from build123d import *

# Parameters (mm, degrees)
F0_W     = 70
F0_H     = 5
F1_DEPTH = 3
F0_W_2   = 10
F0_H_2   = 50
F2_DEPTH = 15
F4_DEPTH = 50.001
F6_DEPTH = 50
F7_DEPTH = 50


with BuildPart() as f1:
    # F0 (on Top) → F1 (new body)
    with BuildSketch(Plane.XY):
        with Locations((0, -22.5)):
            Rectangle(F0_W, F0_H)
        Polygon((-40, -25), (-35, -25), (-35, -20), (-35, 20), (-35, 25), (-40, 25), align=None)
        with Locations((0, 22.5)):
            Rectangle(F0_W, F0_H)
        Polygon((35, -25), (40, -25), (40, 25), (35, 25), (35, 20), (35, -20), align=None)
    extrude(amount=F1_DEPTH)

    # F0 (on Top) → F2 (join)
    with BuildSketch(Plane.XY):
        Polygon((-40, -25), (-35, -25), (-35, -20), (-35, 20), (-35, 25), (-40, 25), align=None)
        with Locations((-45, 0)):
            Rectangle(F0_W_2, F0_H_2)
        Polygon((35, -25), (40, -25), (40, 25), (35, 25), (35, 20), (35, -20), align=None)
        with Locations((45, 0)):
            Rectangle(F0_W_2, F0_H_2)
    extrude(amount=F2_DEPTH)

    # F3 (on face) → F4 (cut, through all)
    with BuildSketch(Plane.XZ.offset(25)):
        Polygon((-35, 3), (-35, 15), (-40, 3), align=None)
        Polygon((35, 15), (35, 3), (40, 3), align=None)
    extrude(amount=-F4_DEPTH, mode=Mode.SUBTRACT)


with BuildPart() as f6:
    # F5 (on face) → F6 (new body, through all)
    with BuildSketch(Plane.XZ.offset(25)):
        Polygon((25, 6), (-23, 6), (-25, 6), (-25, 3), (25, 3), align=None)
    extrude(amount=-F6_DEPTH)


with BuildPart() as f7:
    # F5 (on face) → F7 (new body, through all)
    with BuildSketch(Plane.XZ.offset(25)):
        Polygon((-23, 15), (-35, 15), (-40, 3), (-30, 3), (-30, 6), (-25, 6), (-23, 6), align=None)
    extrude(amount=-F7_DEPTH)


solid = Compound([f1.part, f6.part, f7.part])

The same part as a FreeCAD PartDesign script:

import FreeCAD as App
import Part
import Sketcher

V = App.Vector


def add_polygon(sketch, points):
    """Adds a closed chain of lines whose ends are joined by coincident constraints."""
    first, n = sketch.GeometryCount, len(points)
    for a, b in zip(points, points[1:] + points[:1]):
        sketch.addGeometry(Part.LineSegment(App.Vector(*a, 0), App.Vector(*b, 0)), False)
    for i in range(n):
        sketch.addConstraint(Sketcher.Constraint("Coincident", first + i, 2, first + (i + 1) % n, 1))

doc = App.newDocument("Part")
body = doc.addObject("PartDesign::Body", "Body")

sketch1 = body.newObject("Sketcher::SketchObject", "Sketch")
sketch1.AttachmentSupport = (doc.getObject("XY_Plane"), [""])
sketch1.MapMode = "FlatFace"
add_polygon(sketch1, [(-40, 25), (-40, -25), (40, -25), (40, 25)])
add_polygon(sketch1, [(35, -20), (-35, -20), (-35, 20), (35, 20)])
sketch1.addConstraint(Sketcher.Constraint("Vertical", 0))
sketch1.addConstraint(Sketcher.Constraint("Horizontal", 1))
sketch1.addConstraint(Sketcher.Constraint("Vertical", 2))
sketch1.addConstraint(Sketcher.Constraint("Horizontal", 3))
sketch1.addConstraint(Sketcher.Constraint("Horizontal", 4))
sketch1.addConstraint(Sketcher.Constraint("Vertical", 5))
sketch1.addConstraint(Sketcher.Constraint("Horizontal", 6))
sketch1.addConstraint(Sketcher.Constraint("Vertical", 7))
sketch1.addConstraint(Sketcher.Constraint("Symmetric", 0, 2, 2, 2, -1, 1))
sketch1.addConstraint(Sketcher.Constraint("Symmetric", 4, 2, 6, 2, -1, 1))
sketch1.addConstraint(Sketcher.Constraint("DistanceX", 1, 1, 1, 2, 80.0))
sketch1.addConstraint(Sketcher.Constraint("DistanceX", 4, 2, 4, 1, 70.0))
sketch1.addConstraint(Sketcher.Constraint("DistanceY", 0, 2, 0, 1, 50.0))
sketch1.addConstraint(Sketcher.Constraint("DistanceY", 5, 1, 5, 2, 40.0))
pad1 = body.newObject("PartDesign::Pad", "Pad")
pad1.Profile = sketch1
pad1.Length = 3

sketch2 = body.newObject("Sketcher::SketchObject", "Sketch001")
sketch2.AttachmentSupport = (doc.getObject("XY_Plane"), [""])
sketch2.MapMode = "FlatFace"
add_polygon(sketch2, [(-35, -25), (-35, 25), (-50, 25), (-50, -25)])
add_polygon(sketch2, [(35, -25), (50, -25), (50, 25), (35, 25)])
sketch2.addConstraint(Sketcher.Constraint("Vertical", 0))
sketch2.addConstraint(Sketcher.Constraint("Horizontal", 1))
sketch2.addConstraint(Sketcher.Constraint("Vertical", 2))
sketch2.addConstraint(Sketcher.Constraint("Horizontal", 3))
sketch2.addConstraint(Sketcher.Constraint("Horizontal", 4))
sketch2.addConstraint(Sketcher.Constraint("Vertical", 5))
sketch2.addConstraint(Sketcher.Constraint("Horizontal", 6))
sketch2.addConstraint(Sketcher.Constraint("Vertical", 7))
sketch2.addConstraint(Sketcher.Constraint("Symmetric", 1, 2, 4, 2, -1, 1))
sketch2.addConstraint(Sketcher.Constraint("Symmetric", 3, 2, 6, 2, -1, 1))
sketch2.addConstraint(Sketcher.Constraint("Horizontal", 3, 2, 4, 2))
sketch2.addConstraint(Sketcher.Constraint("DistanceX", 1, 2, 1, 1, 15.0))
sketch2.addConstraint(Sketcher.Constraint("DistanceY", 0, 1, 0, 2, 50.0))
sketch2.addConstraint(Sketcher.Constraint("DistanceX", 0, 2, -1, 1, 35.0))
pad2 = body.newObject("PartDesign::Pad", "Pad001")
pad2.Profile = sketch2
pad2.Length = 15

sketch3 = body.newObject("Sketcher::SketchObject", "Sketch002")
sketch3.AttachmentSupport = (doc.getObject("XZ_Plane"), [""])
sketch3.MapMode = "FlatFace"
sketch3.AttachmentOffset = App.Placement(V(0, 0, 25), App.Rotation())
add_polygon(sketch3, [(-35, 3), (-35, 15), (-40, 3)])
add_polygon(sketch3, [(35, 15), (35, 3), (40, 3)])
sketch3.addConstraint(Sketcher.Constraint("Vertical", 0))
sketch3.addConstraint(Sketcher.Constraint("Horizontal", 2))
sketch3.addConstraint(Sketcher.Constraint("Vertical", 3))
sketch3.addConstraint(Sketcher.Constraint("Horizontal", 4))
sketch3.addConstraint(Sketcher.Constraint("Symmetric", 2, 2, 3, 2, -2))
sketch3.addConstraint(Sketcher.Constraint("Horizontal", 0, 2, 5, 2))
sketch3.addConstraint(Sketcher.Constraint("Equal", 2, 4))
sketch3.addConstraint(Sketcher.Constraint("DistanceX", 2, 1, 2, 2, 5.0))
sketch3.addConstraint(Sketcher.Constraint("DistanceY", 0, 1, 0, 2, 12.0))
sketch3.addConstraint(Sketcher.Constraint("DistanceX", 0, 2, -1, 1, 35.0))
sketch3.addConstraint(Sketcher.Constraint("DistanceY", -1, 1, 0, 2, 15.0))
pocket1 = body.newObject("PartDesign::Pocket", "Pocket")
pocket1.Profile = sketch3
pocket1.Type = "ThroughAll"
body2 = doc.addObject("PartDesign::Body", "Body001")

sketch4 = body2.newObject("Sketcher::SketchObject", "Sketch003")
sketch4.AttachmentSupport = (doc.getObject("XZ_Plane001"), [""])
sketch4.MapMode = "FlatFace"
sketch4.AttachmentOffset = App.Placement(V(0, 0, 25), App.Rotation())
add_polygon(sketch4, [(25, 6), (-25, 6), (-25, 3), (25, 3)])
sketch4.addConstraint(Sketcher.Constraint("Horizontal", 0))
sketch4.addConstraint(Sketcher.Constraint("Vertical", 1))
sketch4.addConstraint(Sketcher.Constraint("Horizontal", 2))
sketch4.addConstraint(Sketcher.Constraint("Vertical", 3))
sketch4.addConstraint(Sketcher.Constraint("DistanceX", 0, 2, 0, 1, 50.0))
sketch4.addConstraint(Sketcher.Constraint("DistanceY", 1, 2, 1, 1, 3.0))
sketch4.addConstraint(Sketcher.Constraint("DistanceX", 0, 2, -1, 1, 25.0))
sketch4.addConstraint(Sketcher.Constraint("DistanceY", -1, 1, 0, 2, 6.0))
pad3 = body2.newObject("PartDesign::Pad", "Pad002")
pad3.Profile = sketch4
pad3.Length = 50
pad3.Reversed = True
body3 = doc.addObject("PartDesign::Body", "Body002")

sketch5 = body3.newObject("Sketcher::SketchObject", "Sketch004")
sketch5.AttachmentSupport = (doc.getObject("XZ_Plane002"), [""])
sketch5.MapMode = "FlatFace"
sketch5.AttachmentOffset = App.Placement(V(0, 0, 25), App.Rotation())
add_polygon(sketch5, [(-23, 15), (-35, 15), (-40, 3), (-30, 3), (-30, 6), (-23, 6)])
sketch5.addConstraint(Sketcher.Constraint("Horizontal", 0))
sketch5.addConstraint(Sketcher.Constraint("Horizontal", 2))
sketch5.addConstraint(Sketcher.Constraint("Vertical", 3))
sketch5.addConstraint(Sketcher.Constraint("Horizontal", 4))
sketch5.addConstraint(Sketcher.Constraint("Vertical", 5))
sketch5.addConstraint(Sketcher.Constraint("DistanceX", 0, 2, 0, 1, 12.0))
sketch5.addConstraint(Sketcher.Constraint("DistanceX", 2, 1, 2, 2, 10.0))
sketch5.addConstraint(Sketcher.Constraint("DistanceX", 4, 1, 4, 2, 7.0))
sketch5.addConstraint(Sketcher.Constraint("DistanceY", 3, 1, 3, 2, 3.0))
sketch5.addConstraint(Sketcher.Constraint("DistanceY", 5, 1, 5, 2, 9.0))
sketch5.addConstraint(Sketcher.Constraint("DistanceX", 0, 2, -1, 1, 35.0))
sketch5.addConstraint(Sketcher.Constraint("DistanceY", -1, 1, 0, 2, 15.0))
pad4 = body3.newObject("PartDesign::Pad", "Pad003")
pad4.Profile = sketch5
pad4.Length = 50
pad4.Reversed = True

doc.recompute()
